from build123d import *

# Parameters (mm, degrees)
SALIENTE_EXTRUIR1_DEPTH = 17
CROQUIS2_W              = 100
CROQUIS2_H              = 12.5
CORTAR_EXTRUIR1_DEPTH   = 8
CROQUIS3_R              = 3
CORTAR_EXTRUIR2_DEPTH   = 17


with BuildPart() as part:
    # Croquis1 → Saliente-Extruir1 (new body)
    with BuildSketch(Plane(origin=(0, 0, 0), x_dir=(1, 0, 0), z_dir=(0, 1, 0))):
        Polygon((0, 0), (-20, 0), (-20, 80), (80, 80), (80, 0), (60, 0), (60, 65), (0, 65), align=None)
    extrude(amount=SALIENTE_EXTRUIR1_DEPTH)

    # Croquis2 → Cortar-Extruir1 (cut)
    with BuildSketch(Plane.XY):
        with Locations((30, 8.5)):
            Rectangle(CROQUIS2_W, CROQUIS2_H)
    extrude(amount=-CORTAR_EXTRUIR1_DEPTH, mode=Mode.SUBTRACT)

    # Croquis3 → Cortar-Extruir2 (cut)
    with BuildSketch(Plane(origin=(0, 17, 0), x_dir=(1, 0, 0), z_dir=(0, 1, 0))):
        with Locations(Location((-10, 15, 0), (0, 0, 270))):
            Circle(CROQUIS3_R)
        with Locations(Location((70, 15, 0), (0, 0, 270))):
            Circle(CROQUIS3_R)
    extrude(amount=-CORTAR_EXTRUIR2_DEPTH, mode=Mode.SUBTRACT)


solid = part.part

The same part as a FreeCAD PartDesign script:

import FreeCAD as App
import Part
import Sketcher
from FreeCAD import Vector
Q = App.Units.Quantity


def add_polygon(sketch, points):
    """Adds a closed chain of lines whose ends are joined by coincident constraints."""
    first, n = sketch.GeometryCount, len(points)
    for a, b in zip(points, points[1:] + points[:1]):
        sketch.addGeometry(Part.LineSegment(App.Vector(*a, 0), App.Vector(*b, 0)), False)
    for i in range(n):
        sketch.addConstraint(Sketcher.Constraint("Coincident", first + i, 2, first + (i + 1) % n, 1))

doc = App.newDocument("Part")
body = doc.addObject("PartDesign::Body", "Body")

sketch1 = doc.addObject("Sketcher::SketchObject", "Sketch")
body.addObject(sketch1)
sketch1.AttachmentSupport = (doc.XZ_Plane, [""])
sketch1.MapMode = "FlatFace"
add_polygon(sketch1, [(-20, 0), (0, 0), (0, -65), (60, -65), (60, 0), (80, 0), (80, -80), (-20, -80)])
sketch1.addConstraint([
    Sketcher.Constraint("Horizontal", 0),
    Sketcher.Constraint("Vertical", 1),
    Sketcher.Constraint("Horizontal", 2),
    Sketcher.Constraint("Vertical", 3),
    Sketcher.Constraint("Horizontal", 4),
    Sketcher.Constraint("Vertical", 5),
    Sketcher.Constraint("Horizontal", 6),
    Sketcher.Constraint("Vertical", 7),
    Sketcher.Constraint("Coincident", 0, 2, -1, 1),
    Sketcher.Constraint("PointOnObject", 3, 2, -1),
    Sketcher.Constraint("Equal", 0, 4),
    Sketcher.Constraint("DistanceX", 0, 1, 0, 2, Q("20 mm")),
    Sketcher.Constraint("DistanceX", 2, 1, 2, 2, Q("60 mm")),
    Sketcher.Constraint("DistanceY", 1, 2, 1, 1, Q("65 mm")),
    Sketcher.Constraint("DistanceY", 5, 2, 5, 1, Q("80 mm")),
])
pad1 = doc.addObject("PartDesign::Pad", "Pad")
body.addObject(pad1)
pad1.Profile = sketch1
pad1.Length = 17
pad1.Reversed = True

sketch2 = doc.addObject("Sketcher::SketchObject", "Sketch001")
body.addObject(sketch2)
sketch2.AttachmentSupport = (doc.XY_Plane, [""])
sketch2.MapMode = "FlatFace"
add_polygon(sketch2, [(-20, 15), (-20, 2), (80, 2), (80, 15)])
sketch2.addConstraint([
    Sketcher.Constraint("Vertical", 0),
    Sketcher.Constraint("Horizontal", 1),
    Sketcher.Constraint("Vertical", 2),
    Sketcher.Constraint("Horizontal", 3),
    Sketcher.Constraint("DistanceX", 1, 1, 1, 2, Q("100 mm")),
    Sketcher.Constraint("DistanceY", 0, 2, 0, 1, Q("12.5 mm")),
    Sketcher.Constraint("DistanceX", 0, 2, -1, 1, Q("20 mm")),
    Sketcher.Constraint("DistanceY", -1, 1, 0, 2, Q("2.25 mm")),
])
pocket1 = doc.addObject("PartDesign::Pocket", "Pocket")
body.addObject(pocket1)
pocket1.Profile = sketch2
pocket1.Length = 8

sketch3 = doc.addObject("Sketcher::SketchObject", "Sketch002")
body.addObject(sketch3)
sketch3.AttachmentSupport = (doc.XZ_Plane, [""])
sketch3.MapMode = "FlatFace"
sketch3.AttachmentOffset = App.Placement(Vector(0, 0, -17), App.Rotation())
sketch3.addGeometry([
    Part.Circle(Vector(-10, -15, 0), Vector(0, 0, 1), 3),
    Part.Circle(Vector(70, -15, 0), Vector(0, 0, 1), 3),
], False)
sketch3.addConstraint([
    Sketcher.Constraint("Equal", 0, 1),
    Sketcher.Constraint("Horizontal", 0, 3, 1, 3),
    Sketcher.Constraint("Diameter", 0, Q("6 mm")),
    Sketcher.Constraint("DistanceX", 0, 3, -1, 1, Q("10 mm")),
    Sketcher.Constraint("DistanceY", 0, 3, -1, 1, Q("15 mm")),
    Sketcher.Constraint("DistanceX", -1, 1, 1, 3, Q("70 mm")),
])
pocket2 = doc.addObject("PartDesign::Pocket", "Pocket001")
body.addObject(pocket2)
pocket2.Profile = sketch3
pocket2.Length = 17
pocket2.Reversed = True

doc.recompute()
